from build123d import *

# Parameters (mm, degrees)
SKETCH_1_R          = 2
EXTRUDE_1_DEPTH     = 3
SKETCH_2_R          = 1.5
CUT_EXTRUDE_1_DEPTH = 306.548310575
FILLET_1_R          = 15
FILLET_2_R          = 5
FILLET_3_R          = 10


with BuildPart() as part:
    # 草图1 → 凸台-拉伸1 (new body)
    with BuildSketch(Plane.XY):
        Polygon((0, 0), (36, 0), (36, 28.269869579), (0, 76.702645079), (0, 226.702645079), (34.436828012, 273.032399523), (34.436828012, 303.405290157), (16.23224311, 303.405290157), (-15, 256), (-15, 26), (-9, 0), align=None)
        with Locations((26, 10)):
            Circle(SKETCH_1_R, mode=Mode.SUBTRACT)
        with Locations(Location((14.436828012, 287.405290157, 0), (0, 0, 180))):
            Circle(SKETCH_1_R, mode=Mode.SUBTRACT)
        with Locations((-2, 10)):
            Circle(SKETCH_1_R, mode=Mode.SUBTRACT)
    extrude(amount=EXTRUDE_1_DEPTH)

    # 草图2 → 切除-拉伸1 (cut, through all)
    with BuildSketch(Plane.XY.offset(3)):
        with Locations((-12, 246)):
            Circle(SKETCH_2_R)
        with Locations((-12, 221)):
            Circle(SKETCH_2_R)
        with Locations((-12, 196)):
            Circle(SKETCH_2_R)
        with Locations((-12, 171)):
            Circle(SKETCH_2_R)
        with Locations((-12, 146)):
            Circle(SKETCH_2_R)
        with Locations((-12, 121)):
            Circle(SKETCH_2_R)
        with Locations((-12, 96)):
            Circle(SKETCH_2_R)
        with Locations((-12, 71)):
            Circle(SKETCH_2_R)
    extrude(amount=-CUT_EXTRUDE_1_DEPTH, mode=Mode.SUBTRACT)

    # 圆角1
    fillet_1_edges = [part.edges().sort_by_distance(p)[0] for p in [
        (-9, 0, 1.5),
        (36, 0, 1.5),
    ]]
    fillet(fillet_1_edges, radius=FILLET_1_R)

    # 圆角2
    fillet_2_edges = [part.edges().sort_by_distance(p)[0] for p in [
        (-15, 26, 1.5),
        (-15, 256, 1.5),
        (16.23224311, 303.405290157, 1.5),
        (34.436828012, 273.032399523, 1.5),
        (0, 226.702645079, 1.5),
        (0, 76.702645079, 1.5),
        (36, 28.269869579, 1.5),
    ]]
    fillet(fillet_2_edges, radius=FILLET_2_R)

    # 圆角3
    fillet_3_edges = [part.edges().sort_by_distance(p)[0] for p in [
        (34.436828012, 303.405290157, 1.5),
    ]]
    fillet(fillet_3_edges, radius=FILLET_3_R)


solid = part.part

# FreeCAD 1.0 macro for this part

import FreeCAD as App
import Part
import Sketcher
from FreeCAD import Vector
Q = App.Units.Quantity


def edges_at(feature, points):
    """Names of the edges that pass closest to the given points."""
    edges = feature.Shape.Edges
    near = lambda p: min(range(len(edges)), key=lambda i: edges[i].distToShape(Part.Vertex(*p))[0])
    return sorted({f"Edge{near(p) + 1}" for p in points})

doc = App.newDocument("Part")
params = doc.addObject("Spreadsheet::Sheet", "Params")
for row, (alias, value) in enumerate([
    ("sketch1_diameter", "4 mm"),
    ("sketch1_width", "45 mm"),
    ("sketch1_height", "150 mm"),
    ("sketch1_height2", "230 mm"),
    ("pad1_length", "3 mm"),
    ("sketch2_diameter", "3 mm"),
    ("fillet_radius", "15 mm"),
    ("fillet2_radius", "5 mm"),
    ("fillet3_radius", "10 mm"),
], start=1):
    params.set(f"A{row}", alias)
    params.set(f"B{row}", "=" + value)
    params.setAlias(f"B{row}", alias)

body = doc.addObject("PartDesign::Body", "Body")

# Sketch on XY plane
sketch1 = body.newObject("Sketcher::SketchObject", "Sketch")
sketch1.AttachmentSupport = (doc.getObject("XY_Plane"), [""])
sketch1.MapMode = "FlatFace"
sketch1.addGeometry([
    Part.LineSegment(Vector(36, 0, 0), Vector(36, 28.26987, 0)),  # 0
    Part.LineSegment(Vector(36, 28.26987, 0), Vector(0, 76.702645, 0)),  # 1
    Part.LineSegment(Vector(0, 76.702645, 0), Vector(0, 226.702645, 0)),  # 2
    Part.LineSegment(Vector(0, 226.702645, 0), Vector(34.436828, 273.0324, 0)),  # 3
    Part.LineSegment(Vector(34.436828, 273.0324, 0), Vector(34.436828, 303.40529, 0)),  # 4
    Part.LineSegment(Vector(34.436828, 303.40529, 0), Vector(16.232243, 303.40529, 0)),  # 5
    Part.LineSegment(Vector(16.232243, 303.40529, 0), Vector(-15, 256, 0)),  # 6
    Part.LineSegment(Vector(-15, 256, 0), Vector(-15, 26, 0)),  # 7
    Part.LineSegment(Vector(-15, 26, 0), Vector(-9, 0, 0)),  # 8
    Part.LineSegment(Vector(-9, 0, 0), Vector(36, 0, 0)),  # 9
    Part.Circle(Vector(-2, 10, 0), Vector(0, 0, 1), 2),  # 10
    Part.Circle(Vector(26, 10, 0), Vector(0, 0, 1), 2),  # 11
    Part.Circle(Vector(14.436828, 287.40529, 0), Vector(0, 0, 1), 2),  # 12
], False)
sketch1.addConstraint([
    Sketcher.Constraint("Coincident", 0, 2, 1, 1),
    Sketcher.Constraint("Coincident", 1, 2, 2, 1),
    Sketcher.Constraint("Coincident", 2, 2, 3, 1),
    Sketcher.Constraint("Coincident", 3, 2, 4, 1),
    Sketcher.Constraint("Coincident", 4, 2, 5, 1),
    Sketcher.Constraint("Coincident", 5, 2, 6, 1),
    Sketcher.Constraint("Coincident", 6, 2, 7, 1),
    Sketcher.Constraint("Coincident", 7, 2, 8, 1),
    Sketcher.Constraint("Coincident", 8, 2, 9, 1),
    Sketcher.Constraint("Coincident", 9, 2, 0, 1),
    Sketcher.Constraint("Vertical", 0),
    Sketcher.Constraint("Vertical", 2),
    Sketcher.Constraint("Vertical", 4),
    Sketcher.Constraint("Horizontal", 5),
    Sketcher.Constraint("Vertical", 7),
    Sketcher.Constraint("Horizontal", 9),
    Sketcher.Constraint("Equal", 10, 11),
    Sketcher.Constraint("Equal", 11, 12),
    Sketcher.Constraint("PointOnObject", 1, 2, -2),
    Sketcher.Constraint("PointOnObject", 8, 2, -1),
    Sketcher.Constraint("Horizontal", 10, 3, 11, 3),
    Sketcher.Constraint("Diameter", 10, Q("4 mm")),
    Sketcher.Constraint("DistanceX", 9, 1, 9, 2, Q("45 mm")),
    Sketcher.Constraint("DistanceY", 2, 1, 2, 2, Q("150 mm")),
    Sketcher.Constraint("DistanceY", 7, 2, 7, 1, Q("230 mm")),
    Sketcher.Constraint("DistanceX", 10, 3, -1, 1, Q("2 mm")),
    Sketcher.Constraint("DistanceY", -1, 1, 10, 3, Q("10 mm")),
    Sketcher.Constraint("DistanceX", -1, 1, 11, 3, Q("26 mm")),
    Sketcher.Constraint("DistanceX", -1, 1, 0, 2, Q("36 mm")),
    Sketcher.Constraint("DistanceX", 6, 2, -1, 1, Q("15 mm")),
    Sketcher.Constraint("DistanceY", -1, 1, 6, 2, Q("256 mm")),
    Sketcher.Constraint("DistanceX", 12, 3, 3, 2, Q("20 mm")),
    Sketcher.Constraint("DistanceY", 12, 3, 4, 2, Q("16 mm")),
    Sketcher.Constraint("DistanceY", 0, 1, 0, 2, Q("28.26987 mm")),
    Sketcher.Constraint("DistanceY", 4, 1, 4, 2, Q("30.372891 mm")),
    Sketcher.Constraint("DistanceY", -1, 1, 3, 2, Q("273.0324 mm")),
    Sketcher.Constraint("Distance", 1, Q("60.346779 mm")),
    Sketcher.Constraint("DistanceX", 5, 2, 5, 1, Q("18.204585 mm")),
    Sketcher.Constraint("DistanceX", -1, 1, 12, 3, Q("14.436828 mm")),
])
sketch1.setExpression("Constraints[21]", "Params.sketch1_diameter")
sketch1.setExpression("Constraints[22]", "Params.sketch1_width")
sketch1.setExpression("Constraints[23]", "Params.sketch1_height")
sketch1.setExpression("Constraints[24]", "Params.sketch1_height2")
pad1 = body.newObject("PartDesign::Pad", "Pad")
pad1.Profile = sketch1
pad1.setExpression("Length", "Params.pad1_length")

# Sketch on XY plane
sketch2 = body.newObject("Sketcher::SketchObject", "Sketch001")
sketch2.AttachmentSupport = (doc.getObject("XY_Plane"), [""])
sketch2.MapMode = "FlatFace"
sketch2.AttachmentOffset = App.Placement(Vector(0, 0, 3), App.Rotation())
sketch2.addGeometry([
    Part.Circle(Vector(-12, 246, 0), Vector(0, 0, 1), 1.5),  # 0
    Part.Circle(Vector(-12, 221, 0), Vector(0, 0, 1), 1.5),  # 1
    Part.Circle(Vector(-12, 196, 0), Vector(0, 0, 1), 1.5),  # 2
    Part.Circle(Vector(-12, 171, 0), Vector(0, 0, 1), 1.5),  # 3
    Part.Circle(Vector(-12, 146, 0), Vector(0, 0, 1), 1.5),  # 4
    Part.Circle(Vector(-12, 121, 0), Vector(0, 0, 1), 1.5),  # 5
    Part.Circle(Vector(-12, 96, 0), Vector(0, 0, 1), 1.5),  # 6
    Part.Circle(Vector(-12, 71, 0), Vector(0, 0, 1), 1.5),  # 7
], False)
sketch2.addConstraint([
    Sketcher.Constraint("Equal", 0, 1),
    Sketcher.Constraint("Equal", 1, 2),
    Sketcher.Constraint("Equal", 2, 3),
    Sketcher.Constraint("Equal", 3, 4),
    Sketcher.Constraint("Equal", 4, 5),
    Sketcher.Constraint("Equal", 5, 6),
    Sketcher.Constraint("Equal", 6, 7),
    Sketcher.Constraint("Vertical", 0, 3, 1, 3),
    Sketcher.Constraint("Vertical", 1, 3, 2, 3),
    Sketcher.Constraint("Vertical", 2, 3, 3, 3),
    Sketcher.Constraint("Vertical", 3, 3, 4, 3),
    Sketcher.Constraint("Vertical", 4, 3, 5, 3),
    Sketcher.Constraint("Vertical", 5, 3, 6, 3),
    Sketcher.Constraint("Vertical", 6, 3, 7, 3),
    Sketcher.Constraint("Diameter", 0, Q("3 mm")),
    Sketcher.Constraint("DistanceX", 0, 3, -1, 1, Q("12 mm")),
    Sketcher.Constraint("DistanceY", -1, 1, 0, 3, Q("246 mm")),
    Sketcher.Constraint("DistanceY", -1, 1, 1, 3, Q("221 mm")),
    Sketcher.Constraint("DistanceY", -1, 1, 2, 3, Q("196 mm")),
    Sketcher.Constraint("DistanceY", -1, 1, 3, 3, Q("171 mm")),
    Sketcher.Constraint("DistanceY", -1, 1, 4, 3, Q("146 mm")),
    Sketcher.Constraint("DistanceY", -1, 1, 5, 3, Q("121 mm")),
    Sketcher.Constraint("DistanceY", -1, 1, 6, 3, Q("96 mm")),
    Sketcher.Constraint("DistanceY", -1, 1, 7, 3, Q("71 mm")),
])
sketch2.setExpression("Constraints[14]", "Params.sketch2_diameter")
pocket1 = body.newObject("PartDesign::Pocket", "Pocket")
pocket1.Profile = sketch2
pocket1.Type = "ThroughAll"
doc.recompute()

fillet = body.newObject("PartDesign::Fillet", "Fillet")
fillet.Base = (pocket1, edges_at(pocket1, [(-9, 0, 1.5), (36, 0, 1.5)]))
fillet.setExpression("Radius", "Params.fillet_radius")
doc.recompute()

fillet2 = body.newObject("PartDesign::Fillet", "Fillet001")
fillet2.Base = (fillet, edges_at(fillet, [
    (-15, 26, 1.5),
    (-15, 256, 1.5),
    (16.232, 303.405, 1.5),
    (34.437, 273.032, 1.5),
    (0, 226.703, 1.5),
    (0, 76.703, 1.5),
    (36, 28.27, 1.5),
]))
fillet2.setExpression("Radius", "Params.fillet2_radius")
doc.recompute()

fillet3 = body.newObject("PartDesign::Fillet", "Fillet002")
fillet3.Base = (fillet2, edges_at(fillet2, [(34.437, 303.405, 1.5)]))
fillet3.setExpression("Radius", "Params.fillet3_radius")

doc.recompute()
